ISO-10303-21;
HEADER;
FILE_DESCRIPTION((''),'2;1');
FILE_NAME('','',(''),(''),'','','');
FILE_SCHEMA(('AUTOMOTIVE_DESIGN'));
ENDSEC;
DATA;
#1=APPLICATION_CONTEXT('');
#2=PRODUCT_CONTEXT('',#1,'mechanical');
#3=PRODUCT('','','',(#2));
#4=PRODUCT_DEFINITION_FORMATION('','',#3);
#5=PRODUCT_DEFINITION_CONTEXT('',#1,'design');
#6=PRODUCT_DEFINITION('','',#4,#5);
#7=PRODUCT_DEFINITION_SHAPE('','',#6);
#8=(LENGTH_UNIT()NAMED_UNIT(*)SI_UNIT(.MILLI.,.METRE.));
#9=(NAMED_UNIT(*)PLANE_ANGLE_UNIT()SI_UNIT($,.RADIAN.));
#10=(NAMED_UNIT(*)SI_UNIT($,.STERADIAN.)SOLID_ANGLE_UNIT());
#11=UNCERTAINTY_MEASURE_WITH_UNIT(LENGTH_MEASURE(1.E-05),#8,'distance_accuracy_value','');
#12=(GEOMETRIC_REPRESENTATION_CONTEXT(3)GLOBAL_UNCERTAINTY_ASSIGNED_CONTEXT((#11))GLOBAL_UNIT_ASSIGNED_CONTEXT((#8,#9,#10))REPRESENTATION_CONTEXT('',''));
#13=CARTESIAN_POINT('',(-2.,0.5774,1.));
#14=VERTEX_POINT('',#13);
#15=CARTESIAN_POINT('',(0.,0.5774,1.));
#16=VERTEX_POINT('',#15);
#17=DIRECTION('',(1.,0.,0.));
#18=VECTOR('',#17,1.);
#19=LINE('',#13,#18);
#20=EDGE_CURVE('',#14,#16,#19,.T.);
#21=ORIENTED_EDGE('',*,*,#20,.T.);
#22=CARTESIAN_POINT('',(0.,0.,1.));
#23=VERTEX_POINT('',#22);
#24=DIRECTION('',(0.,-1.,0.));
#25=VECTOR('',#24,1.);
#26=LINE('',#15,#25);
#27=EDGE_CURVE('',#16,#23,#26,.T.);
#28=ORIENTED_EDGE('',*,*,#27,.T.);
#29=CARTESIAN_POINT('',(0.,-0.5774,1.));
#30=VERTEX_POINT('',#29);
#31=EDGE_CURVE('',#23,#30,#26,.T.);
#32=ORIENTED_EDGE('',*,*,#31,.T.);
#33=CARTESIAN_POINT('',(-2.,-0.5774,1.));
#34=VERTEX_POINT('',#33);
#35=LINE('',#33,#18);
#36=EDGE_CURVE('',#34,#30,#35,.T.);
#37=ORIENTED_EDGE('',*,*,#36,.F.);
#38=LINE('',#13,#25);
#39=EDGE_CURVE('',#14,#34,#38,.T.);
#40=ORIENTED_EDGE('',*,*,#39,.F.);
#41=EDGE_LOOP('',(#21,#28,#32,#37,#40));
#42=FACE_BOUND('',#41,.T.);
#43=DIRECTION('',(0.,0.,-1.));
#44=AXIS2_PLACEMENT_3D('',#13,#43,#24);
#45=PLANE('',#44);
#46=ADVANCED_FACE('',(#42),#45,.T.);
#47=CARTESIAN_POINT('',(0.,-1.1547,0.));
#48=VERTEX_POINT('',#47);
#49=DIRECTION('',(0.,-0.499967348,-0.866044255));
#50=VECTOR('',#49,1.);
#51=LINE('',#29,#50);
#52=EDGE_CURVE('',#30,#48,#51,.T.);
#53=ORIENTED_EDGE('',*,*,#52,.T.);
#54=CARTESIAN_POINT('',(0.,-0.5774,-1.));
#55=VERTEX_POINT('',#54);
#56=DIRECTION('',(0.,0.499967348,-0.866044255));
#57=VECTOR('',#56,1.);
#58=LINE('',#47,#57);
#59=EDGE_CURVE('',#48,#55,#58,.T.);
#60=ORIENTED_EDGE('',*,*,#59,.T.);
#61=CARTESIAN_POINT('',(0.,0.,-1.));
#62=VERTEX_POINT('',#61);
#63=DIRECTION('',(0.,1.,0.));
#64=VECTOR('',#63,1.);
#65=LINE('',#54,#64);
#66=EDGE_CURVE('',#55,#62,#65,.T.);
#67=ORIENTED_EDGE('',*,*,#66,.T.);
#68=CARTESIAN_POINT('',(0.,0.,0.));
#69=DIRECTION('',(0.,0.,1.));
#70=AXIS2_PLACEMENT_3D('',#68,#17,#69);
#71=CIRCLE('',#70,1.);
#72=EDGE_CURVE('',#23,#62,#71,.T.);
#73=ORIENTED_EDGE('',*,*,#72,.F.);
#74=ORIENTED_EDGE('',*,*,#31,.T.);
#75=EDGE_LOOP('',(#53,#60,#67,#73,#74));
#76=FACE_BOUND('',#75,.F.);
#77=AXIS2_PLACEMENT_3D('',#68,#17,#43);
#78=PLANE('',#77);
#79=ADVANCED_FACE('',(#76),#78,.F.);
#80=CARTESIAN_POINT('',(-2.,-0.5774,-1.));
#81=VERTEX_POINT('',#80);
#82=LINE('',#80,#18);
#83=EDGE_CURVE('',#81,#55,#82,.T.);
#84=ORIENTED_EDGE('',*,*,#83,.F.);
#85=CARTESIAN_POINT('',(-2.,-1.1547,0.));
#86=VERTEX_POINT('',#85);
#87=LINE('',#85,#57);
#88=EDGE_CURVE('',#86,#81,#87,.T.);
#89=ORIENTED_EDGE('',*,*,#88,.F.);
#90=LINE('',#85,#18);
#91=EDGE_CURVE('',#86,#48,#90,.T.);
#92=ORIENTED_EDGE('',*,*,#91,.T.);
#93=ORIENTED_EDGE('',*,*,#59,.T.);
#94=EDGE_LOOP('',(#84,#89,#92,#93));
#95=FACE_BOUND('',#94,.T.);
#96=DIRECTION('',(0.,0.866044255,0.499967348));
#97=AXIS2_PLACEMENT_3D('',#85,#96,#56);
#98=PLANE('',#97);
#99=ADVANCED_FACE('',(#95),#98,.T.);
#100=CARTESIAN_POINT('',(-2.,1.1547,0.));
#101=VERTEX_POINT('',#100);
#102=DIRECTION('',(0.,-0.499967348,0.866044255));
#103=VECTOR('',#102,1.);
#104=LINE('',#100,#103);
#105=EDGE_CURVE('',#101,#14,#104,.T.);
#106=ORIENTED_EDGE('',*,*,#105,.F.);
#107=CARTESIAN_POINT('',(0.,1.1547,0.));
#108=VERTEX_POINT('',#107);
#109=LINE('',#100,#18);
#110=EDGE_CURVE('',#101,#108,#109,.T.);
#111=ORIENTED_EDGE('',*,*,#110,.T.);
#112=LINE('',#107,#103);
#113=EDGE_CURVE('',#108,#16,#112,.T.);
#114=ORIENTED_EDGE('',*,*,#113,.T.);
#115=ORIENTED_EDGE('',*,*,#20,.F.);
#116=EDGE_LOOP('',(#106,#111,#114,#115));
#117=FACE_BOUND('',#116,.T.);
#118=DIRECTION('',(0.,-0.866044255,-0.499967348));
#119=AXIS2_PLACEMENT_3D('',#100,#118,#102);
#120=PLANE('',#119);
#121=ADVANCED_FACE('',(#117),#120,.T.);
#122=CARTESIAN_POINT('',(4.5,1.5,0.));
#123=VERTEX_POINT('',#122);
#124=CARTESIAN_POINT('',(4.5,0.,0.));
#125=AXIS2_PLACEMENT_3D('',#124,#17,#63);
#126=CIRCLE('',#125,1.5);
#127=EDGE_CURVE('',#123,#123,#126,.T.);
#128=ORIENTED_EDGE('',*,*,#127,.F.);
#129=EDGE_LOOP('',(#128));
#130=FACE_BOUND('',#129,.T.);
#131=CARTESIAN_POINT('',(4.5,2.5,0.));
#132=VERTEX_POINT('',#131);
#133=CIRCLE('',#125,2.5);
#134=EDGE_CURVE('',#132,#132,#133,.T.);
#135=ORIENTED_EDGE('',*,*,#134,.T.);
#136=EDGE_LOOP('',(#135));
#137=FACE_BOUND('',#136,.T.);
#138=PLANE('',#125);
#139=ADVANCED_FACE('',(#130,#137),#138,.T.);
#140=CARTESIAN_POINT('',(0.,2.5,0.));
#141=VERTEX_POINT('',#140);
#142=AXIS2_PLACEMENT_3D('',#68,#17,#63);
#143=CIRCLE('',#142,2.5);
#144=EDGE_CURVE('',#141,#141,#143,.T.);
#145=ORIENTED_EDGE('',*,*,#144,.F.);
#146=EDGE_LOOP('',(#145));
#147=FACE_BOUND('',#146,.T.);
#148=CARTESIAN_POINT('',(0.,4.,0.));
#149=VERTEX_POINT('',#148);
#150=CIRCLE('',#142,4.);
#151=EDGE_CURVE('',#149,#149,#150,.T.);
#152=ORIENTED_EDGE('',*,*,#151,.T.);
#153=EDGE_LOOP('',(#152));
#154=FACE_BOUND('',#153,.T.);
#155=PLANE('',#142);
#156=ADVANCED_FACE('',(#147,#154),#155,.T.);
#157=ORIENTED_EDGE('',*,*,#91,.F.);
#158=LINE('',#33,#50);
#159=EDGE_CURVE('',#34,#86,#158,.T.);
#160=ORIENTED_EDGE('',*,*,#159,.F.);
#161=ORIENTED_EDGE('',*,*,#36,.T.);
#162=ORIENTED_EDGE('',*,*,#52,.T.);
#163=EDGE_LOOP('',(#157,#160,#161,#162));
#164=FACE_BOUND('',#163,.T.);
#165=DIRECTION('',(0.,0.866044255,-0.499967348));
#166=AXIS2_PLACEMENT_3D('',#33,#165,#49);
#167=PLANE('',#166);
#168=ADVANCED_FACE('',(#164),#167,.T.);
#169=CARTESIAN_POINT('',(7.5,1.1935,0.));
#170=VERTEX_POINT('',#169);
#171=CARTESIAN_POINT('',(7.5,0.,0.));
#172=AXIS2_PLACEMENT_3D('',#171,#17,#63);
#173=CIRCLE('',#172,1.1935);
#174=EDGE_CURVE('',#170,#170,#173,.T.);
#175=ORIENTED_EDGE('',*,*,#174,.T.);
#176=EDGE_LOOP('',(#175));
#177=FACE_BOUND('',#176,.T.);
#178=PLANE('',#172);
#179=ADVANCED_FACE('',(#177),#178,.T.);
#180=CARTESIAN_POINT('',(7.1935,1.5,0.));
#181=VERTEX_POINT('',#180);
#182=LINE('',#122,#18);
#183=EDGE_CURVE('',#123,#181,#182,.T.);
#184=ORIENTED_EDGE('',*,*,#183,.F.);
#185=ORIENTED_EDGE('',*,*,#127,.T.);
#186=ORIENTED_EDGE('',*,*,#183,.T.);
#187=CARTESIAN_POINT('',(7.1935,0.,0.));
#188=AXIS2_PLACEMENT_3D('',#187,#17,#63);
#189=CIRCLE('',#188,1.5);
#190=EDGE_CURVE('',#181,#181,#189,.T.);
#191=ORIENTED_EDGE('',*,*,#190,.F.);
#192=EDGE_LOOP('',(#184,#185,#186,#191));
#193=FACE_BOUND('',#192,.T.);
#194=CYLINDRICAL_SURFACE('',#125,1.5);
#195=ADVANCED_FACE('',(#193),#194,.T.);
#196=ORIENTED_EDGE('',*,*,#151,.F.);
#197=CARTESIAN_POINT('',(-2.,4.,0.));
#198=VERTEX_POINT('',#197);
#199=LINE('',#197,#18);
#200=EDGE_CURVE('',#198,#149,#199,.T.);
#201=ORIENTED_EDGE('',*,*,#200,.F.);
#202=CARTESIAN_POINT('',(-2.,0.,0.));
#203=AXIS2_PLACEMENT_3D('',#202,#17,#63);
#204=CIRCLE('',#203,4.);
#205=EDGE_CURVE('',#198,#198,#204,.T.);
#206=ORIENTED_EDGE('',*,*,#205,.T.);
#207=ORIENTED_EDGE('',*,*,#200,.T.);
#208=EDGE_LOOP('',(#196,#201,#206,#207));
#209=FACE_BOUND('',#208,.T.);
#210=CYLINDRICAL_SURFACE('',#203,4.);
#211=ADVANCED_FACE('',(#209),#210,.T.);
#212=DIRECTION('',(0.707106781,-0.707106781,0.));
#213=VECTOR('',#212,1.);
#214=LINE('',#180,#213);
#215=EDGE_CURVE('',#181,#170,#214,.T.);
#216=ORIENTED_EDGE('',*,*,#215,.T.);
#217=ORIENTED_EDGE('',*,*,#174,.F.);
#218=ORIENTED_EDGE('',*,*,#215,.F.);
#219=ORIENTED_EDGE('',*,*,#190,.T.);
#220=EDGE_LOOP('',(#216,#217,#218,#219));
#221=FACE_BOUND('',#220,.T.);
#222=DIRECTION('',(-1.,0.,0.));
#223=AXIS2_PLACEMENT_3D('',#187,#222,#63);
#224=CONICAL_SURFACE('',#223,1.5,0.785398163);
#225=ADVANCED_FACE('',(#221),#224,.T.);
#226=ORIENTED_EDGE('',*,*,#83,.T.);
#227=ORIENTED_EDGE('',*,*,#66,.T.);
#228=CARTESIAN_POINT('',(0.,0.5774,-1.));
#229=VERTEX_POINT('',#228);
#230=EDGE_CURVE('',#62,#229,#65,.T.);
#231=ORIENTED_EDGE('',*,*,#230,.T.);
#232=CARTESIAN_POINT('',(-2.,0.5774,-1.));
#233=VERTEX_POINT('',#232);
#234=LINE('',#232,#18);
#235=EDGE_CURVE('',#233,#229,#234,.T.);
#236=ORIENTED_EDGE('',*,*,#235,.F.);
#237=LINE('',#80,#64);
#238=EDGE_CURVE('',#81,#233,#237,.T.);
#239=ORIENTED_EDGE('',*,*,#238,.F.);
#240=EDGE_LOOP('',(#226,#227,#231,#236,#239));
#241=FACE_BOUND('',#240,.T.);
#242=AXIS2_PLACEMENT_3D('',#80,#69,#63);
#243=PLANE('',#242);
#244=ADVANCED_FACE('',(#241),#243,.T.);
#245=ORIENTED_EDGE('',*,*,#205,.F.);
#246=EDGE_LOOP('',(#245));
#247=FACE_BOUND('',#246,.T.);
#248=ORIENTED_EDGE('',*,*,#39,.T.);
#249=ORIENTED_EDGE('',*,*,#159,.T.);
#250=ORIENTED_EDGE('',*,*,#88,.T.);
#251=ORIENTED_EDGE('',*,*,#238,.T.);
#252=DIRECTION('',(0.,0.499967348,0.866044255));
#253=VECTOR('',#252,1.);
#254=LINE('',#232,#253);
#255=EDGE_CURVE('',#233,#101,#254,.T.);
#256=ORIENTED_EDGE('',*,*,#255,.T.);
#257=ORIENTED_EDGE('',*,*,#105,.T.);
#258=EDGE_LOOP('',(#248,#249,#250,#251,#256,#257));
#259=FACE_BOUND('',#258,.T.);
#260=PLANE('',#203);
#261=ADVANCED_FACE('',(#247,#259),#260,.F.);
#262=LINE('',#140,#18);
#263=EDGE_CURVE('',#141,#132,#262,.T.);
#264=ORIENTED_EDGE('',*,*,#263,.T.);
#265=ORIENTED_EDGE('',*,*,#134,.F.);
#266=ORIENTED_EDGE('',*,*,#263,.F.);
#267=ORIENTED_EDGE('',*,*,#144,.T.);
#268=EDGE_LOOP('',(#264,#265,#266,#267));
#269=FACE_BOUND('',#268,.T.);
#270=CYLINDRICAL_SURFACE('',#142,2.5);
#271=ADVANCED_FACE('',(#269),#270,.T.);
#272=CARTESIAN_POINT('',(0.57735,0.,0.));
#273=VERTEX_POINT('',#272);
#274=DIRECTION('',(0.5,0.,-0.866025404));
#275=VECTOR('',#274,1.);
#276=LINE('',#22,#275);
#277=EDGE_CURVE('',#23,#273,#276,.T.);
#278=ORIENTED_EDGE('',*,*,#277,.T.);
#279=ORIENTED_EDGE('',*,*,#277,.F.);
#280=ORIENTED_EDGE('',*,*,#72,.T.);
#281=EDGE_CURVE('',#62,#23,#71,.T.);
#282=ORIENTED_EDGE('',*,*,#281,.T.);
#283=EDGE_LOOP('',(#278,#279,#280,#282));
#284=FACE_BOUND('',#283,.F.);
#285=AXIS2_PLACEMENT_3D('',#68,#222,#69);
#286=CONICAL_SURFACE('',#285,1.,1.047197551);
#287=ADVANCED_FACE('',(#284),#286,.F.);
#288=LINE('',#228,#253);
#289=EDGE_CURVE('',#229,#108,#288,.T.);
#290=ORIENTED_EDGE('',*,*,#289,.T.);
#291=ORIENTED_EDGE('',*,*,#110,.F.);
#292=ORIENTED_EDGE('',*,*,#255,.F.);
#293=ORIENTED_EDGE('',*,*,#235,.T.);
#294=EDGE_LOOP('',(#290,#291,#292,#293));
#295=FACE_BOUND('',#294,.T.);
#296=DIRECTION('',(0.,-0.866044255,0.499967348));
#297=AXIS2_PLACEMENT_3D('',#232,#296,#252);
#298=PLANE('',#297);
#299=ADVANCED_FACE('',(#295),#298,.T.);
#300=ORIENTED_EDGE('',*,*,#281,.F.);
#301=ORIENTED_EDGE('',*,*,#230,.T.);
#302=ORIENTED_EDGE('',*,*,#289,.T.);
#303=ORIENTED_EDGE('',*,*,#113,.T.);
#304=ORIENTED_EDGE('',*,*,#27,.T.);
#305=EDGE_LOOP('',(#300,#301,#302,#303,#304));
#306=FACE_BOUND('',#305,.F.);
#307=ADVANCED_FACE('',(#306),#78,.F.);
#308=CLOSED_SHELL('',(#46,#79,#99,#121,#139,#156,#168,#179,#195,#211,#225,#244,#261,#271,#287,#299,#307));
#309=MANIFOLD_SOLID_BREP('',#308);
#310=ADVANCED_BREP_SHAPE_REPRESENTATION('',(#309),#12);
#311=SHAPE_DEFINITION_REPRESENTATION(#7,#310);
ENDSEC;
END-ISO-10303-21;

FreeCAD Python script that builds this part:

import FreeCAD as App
import Part
import Sketcher
Q = App.Units.Quantity

doc = App.newDocument("Part")
params = doc.addObject("Spreadsheet::Sheet", "Params")
for row, (alias, value) in enumerate([
    ("sketch1_width", "2 mm"),
    ("sketch1_height", "4 mm"),
    ("sketch1_width2", "6.5 mm"),
    ("sketch1_height2", "2.5 mm"),
    ("revolution_angle", "360 deg"),
    ("sketch2_diameter", "2 mm"),
    ("hole_diameter", "2 mm"),
    ("hole_depth", "2 mm"),
    ("pocket1_length", "2 mm"),
    ("sketch4_width", "3 mm"),
    ("sketch4_height", "1.5 mm"),
    ("revolution2_angle", "360 deg"),
], start=1):
    params.set(f"A{row}", alias)
    params.set(f"B{row}", "=" + value)
    params.setAlias(f"B{row}", alias)

body = doc.addObject("PartDesign::Body", "Body")

sketch1 = body.newObject("Sketcher::SketchObject", "Sketch")
sketch1.AttachmentSupport = (doc.getObject("XY_Plane"), [""])
sketch1.MapMode = "FlatFace"
sketch1.addGeometry([
    Part.LineSegment(App.Vector(-2, 0, 0), App.Vector(4.5, 0, 0)),
    Part.LineSegment(App.Vector(4.5, 0, 0), App.Vector(4.5, 2.5, 0)),
    Part.LineSegment(App.Vector(4.5, 2.5, 0), App.Vector(0, 2.5, 0)),
    Part.LineSegment(App.Vector(0, 2.5, 0), App.Vector(0, 4, 0)),
    Part.LineSegment(App.Vector(0, 4, 0), App.Vector(-2, 4, 0)),
    Part.LineSegment(App.Vector(-2, 4, 0), App.Vector(-2, 0, 0)),
], False)
sketch1.addConstraint([
    Sketcher.Constraint("Coincident", 0, 2, 1, 1),
    Sketcher.Constraint("Coincident", 1, 2, 2, 1),
    Sketcher.Constraint("Coincident", 2, 2, 3, 1),
    Sketcher.Constraint("Coincident", 3, 2, 4, 1),
    Sketcher.Constraint("Coincident", 4, 2, 5, 1),
    Sketcher.Constraint("Coincident", 5, 2, 0, 1),
    Sketcher.Constraint("Horizontal", 0),
    Sketcher.Constraint("Vertical", 1),
    Sketcher.Constraint("Horizontal", 2),
    Sketcher.Constraint("Vertical", 3),
    Sketcher.Constraint("Horizontal", 4),
    Sketcher.Constraint("Vertical", 5),
    Sketcher.Constraint("PointOnObject", 0, 2, -1),
    Sketcher.Constraint("PointOnObject", 2, 2, -2),
    Sketcher.Constraint("DistanceX", 4, 2, 4, 1, Q("2 mm")),
    Sketcher.Constraint("DistanceY", 5, 2, 5, 1, Q("4 mm")),
    Sketcher.Constraint("DistanceX", 0, 1, 0, 2, Q("6.5 mm")),
    Sketcher.Constraint("DistanceY", 1, 1, 1, 2, Q("2.5 mm")),
])
sketch1.setExpression("Constraints[14]", "Params.sketch1_width")
sketch1.setExpression("Constraints[15]", "Params.sketch1_height")
sketch1.setExpression("Constraints[16]", "Params.sketch1_width2")
sketch1.setExpression("Constraints[17]", "Params.sketch1_height2")
revolution = body.newObject("PartDesign::Revolution", "Revolution")
revolution.Profile = sketch1
revolution.ReferenceAxis = (sketch1, ["H_Axis"])
revolution.setExpression("Angle", "Params.revolution_angle")

sketch2 = body.newObject("Sketcher::SketchObject", "Sketch001")
sketch2.AttachmentSupport = (doc.getObject("YZ_Plane"), [""])
sketch2.MapMode = "FlatFace"
sketch2.AttachmentOffset = App.Placement(App.Vector(0, 0, -2), App.Rotation())
sketch2.addGeometry(Part.Circle(App.Vector(0, 0, 0), App.Vector(0, 0, 1), 1), False)
sketch2.addConstraint([
    Sketcher.Constraint("Coincident", 0, 3, -1, 1),
    Sketcher.Constraint("Diameter", 0, Q("2 mm")),
])
sketch2.setExpression("Constraints[1]", "Params.sketch2_diameter")
doc.recompute()
hole = body.newObject("PartDesign::Hole", "Hole")
hole.Profile = sketch2
hole.ThreadType = "None"
hole.setExpression("Diameter", "Params.hole_diameter")
hole.DepthType = "Dimension"
hole.setExpression("Depth", "Params.hole_depth")
hole.DrillPoint = "Angled"
hole.DrillPointAngle = 120
hole.Reversed = True

sketch3 = body.newObject("Sketcher::SketchObject", "Sketch002")
sketch3.AttachmentSupport = (doc.getObject("YZ_Plane"), [""])
sketch3.MapMode = "FlatFace"
sketch3.AttachmentOffset = App.Placement(App.Vector(0, 0, -2), App.Rotation())
sketch3.addGeometry([
    Part.LineSegment(App.Vector(0.6, 1, 0), App.Vector(-0.6, 1, 0)),
    Part.LineSegment(App.Vector(-0.6, 1, 0), App.Vector(-1.2, 0, 0)),
    Part.LineSegment(App.Vector(-1.2, 0, 0), App.Vector(-0.6, -1, 0)),
    Part.LineSegment(App.Vector(-0.6, -1, 0), App.Vector(0.6, -1, 0)),
    Part.LineSegment(App.Vector(0.6, -1, 0), App.Vector(1.2, 0, 0)),
    Part.LineSegment(App.Vector(1.2, 0, 0), App.Vector(0.6, 1, 0)),
], False)
sketch3.addConstraint([
    Sketcher.Constraint("Coincident", 0, 2, 1, 1),
    Sketcher.Constraint("Coincident", 1, 2, 2, 1),
    Sketcher.Constraint("Coincident", 2, 2, 3, 1),
    Sketcher.Constraint("Coincident", 3, 2, 4, 1),
    Sketcher.Constraint("Coincident", 4, 2, 5, 1),
    Sketcher.Constraint("Coincident", 5, 2, 0, 1),
    Sketcher.Constraint("Horizontal", 0),
    Sketcher.Constraint("Horizontal", 3),
    Sketcher.Constraint("Symmetric", 0, 2, 3, 2, -1, 1),
    Sketcher.Constraint("Symmetric", 1, 2, 4, 2, -1, 1),
    Sketcher.Constraint("PointOnObject", 1, 2, -1),
    Sketcher.Constraint("Parallel", 2, 5),
    Sketcher.Constraint("Vertical", 0, 2, 2, 2),
    Sketcher.Constraint("DistanceY", -1, 1, 0, 2, Q("1 mm")),
    Sketcher.Constraint("DistanceX", 0, 2, 0, 1, Q("1.1548 mm")),
    Sketcher.Constraint("DistanceX", 1, 2, 3, 2, Q("1.732 mm")),
])
pocket1 = body.newObject("PartDesign::Pocket", "Pocket")
pocket1.Profile = sketch3
pocket1.setExpression("Length", "Params.pocket1_length")
pocket1.Reversed = True

sketch4 = body.newObject("Sketcher::SketchObject", "Sketch003")
sketch4.AttachmentSupport = (doc.getObject("XY_Plane"), [""])
sketch4.MapMode = "FlatFace"
sketch4.addGeometry([
    Part.LineSegment(App.Vector(4.5, 0, 0), App.Vector(7.5, 0, 0)),
    Part.LineSegment(App.Vector(7.5, 0, 0), App.Vector(7.5, 1.19, 0)),
    Part.LineSegment(App.Vector(7.5, 1.19, 0), App.Vector(7.19, 1.5, 0)),
    Part.LineSegment(App.Vector(7.19, 1.5, 0), App.Vector(4.5, 1.5, 0)),
    Part.LineSegment(App.Vector(4.5, 1.5, 0), App.Vector(4.5, 0, 0)),
], False)
sketch4.addConstraint([
    Sketcher.Constraint("Coincident", 0, 2, 1, 1),
    Sketcher.Constraint("Coincident", 1, 2, 2, 1),
    Sketcher.Constraint("Coincident", 2, 2, 3, 1),
    Sketcher.Constraint("Coincident", 3, 2, 4, 1),
    Sketcher.Constraint("Coincident", 4, 2, 0, 1),
    Sketcher.Constraint("Horizontal", 0),
    Sketcher.Constraint("Vertical", 1),
    Sketcher.Constraint("Horizontal", 3),
    Sketcher.Constraint("Vertical", 4),
    Sketcher.Constraint("PointOnObject", 0, 2, -1),
    Sketcher.Constraint("DistanceX", 0, 1, 0, 2, Q("3 mm")),
    Sketcher.Constraint("Angle", 2, Q("135 deg")),
    Sketcher.Constraint("DistanceY", 4, 2, 4, 1, Q("1.5 mm")),
    Sketcher.Constraint("DistanceX", -1, 1, 0, 2, Q("7.5 mm")),
    Sketcher.Constraint("DistanceX", 3, 2, 3, 1, Q("2.6935 mm")),
])
sketch4.setExpression("Constraints[10]", "Params.sketch4_width")
sketch4.setExpression("Constraints[12]", "Params.sketch4_height")
revolution2 = body.newObject("PartDesign::Revolution", "Revolution001")
revolution2.Profile = sketch4
revolution2.ReferenceAxis = (sketch4, ["H_Axis"])
revolution2.setExpression("Angle", "Params.revolution2_angle")

doc.recompute()
